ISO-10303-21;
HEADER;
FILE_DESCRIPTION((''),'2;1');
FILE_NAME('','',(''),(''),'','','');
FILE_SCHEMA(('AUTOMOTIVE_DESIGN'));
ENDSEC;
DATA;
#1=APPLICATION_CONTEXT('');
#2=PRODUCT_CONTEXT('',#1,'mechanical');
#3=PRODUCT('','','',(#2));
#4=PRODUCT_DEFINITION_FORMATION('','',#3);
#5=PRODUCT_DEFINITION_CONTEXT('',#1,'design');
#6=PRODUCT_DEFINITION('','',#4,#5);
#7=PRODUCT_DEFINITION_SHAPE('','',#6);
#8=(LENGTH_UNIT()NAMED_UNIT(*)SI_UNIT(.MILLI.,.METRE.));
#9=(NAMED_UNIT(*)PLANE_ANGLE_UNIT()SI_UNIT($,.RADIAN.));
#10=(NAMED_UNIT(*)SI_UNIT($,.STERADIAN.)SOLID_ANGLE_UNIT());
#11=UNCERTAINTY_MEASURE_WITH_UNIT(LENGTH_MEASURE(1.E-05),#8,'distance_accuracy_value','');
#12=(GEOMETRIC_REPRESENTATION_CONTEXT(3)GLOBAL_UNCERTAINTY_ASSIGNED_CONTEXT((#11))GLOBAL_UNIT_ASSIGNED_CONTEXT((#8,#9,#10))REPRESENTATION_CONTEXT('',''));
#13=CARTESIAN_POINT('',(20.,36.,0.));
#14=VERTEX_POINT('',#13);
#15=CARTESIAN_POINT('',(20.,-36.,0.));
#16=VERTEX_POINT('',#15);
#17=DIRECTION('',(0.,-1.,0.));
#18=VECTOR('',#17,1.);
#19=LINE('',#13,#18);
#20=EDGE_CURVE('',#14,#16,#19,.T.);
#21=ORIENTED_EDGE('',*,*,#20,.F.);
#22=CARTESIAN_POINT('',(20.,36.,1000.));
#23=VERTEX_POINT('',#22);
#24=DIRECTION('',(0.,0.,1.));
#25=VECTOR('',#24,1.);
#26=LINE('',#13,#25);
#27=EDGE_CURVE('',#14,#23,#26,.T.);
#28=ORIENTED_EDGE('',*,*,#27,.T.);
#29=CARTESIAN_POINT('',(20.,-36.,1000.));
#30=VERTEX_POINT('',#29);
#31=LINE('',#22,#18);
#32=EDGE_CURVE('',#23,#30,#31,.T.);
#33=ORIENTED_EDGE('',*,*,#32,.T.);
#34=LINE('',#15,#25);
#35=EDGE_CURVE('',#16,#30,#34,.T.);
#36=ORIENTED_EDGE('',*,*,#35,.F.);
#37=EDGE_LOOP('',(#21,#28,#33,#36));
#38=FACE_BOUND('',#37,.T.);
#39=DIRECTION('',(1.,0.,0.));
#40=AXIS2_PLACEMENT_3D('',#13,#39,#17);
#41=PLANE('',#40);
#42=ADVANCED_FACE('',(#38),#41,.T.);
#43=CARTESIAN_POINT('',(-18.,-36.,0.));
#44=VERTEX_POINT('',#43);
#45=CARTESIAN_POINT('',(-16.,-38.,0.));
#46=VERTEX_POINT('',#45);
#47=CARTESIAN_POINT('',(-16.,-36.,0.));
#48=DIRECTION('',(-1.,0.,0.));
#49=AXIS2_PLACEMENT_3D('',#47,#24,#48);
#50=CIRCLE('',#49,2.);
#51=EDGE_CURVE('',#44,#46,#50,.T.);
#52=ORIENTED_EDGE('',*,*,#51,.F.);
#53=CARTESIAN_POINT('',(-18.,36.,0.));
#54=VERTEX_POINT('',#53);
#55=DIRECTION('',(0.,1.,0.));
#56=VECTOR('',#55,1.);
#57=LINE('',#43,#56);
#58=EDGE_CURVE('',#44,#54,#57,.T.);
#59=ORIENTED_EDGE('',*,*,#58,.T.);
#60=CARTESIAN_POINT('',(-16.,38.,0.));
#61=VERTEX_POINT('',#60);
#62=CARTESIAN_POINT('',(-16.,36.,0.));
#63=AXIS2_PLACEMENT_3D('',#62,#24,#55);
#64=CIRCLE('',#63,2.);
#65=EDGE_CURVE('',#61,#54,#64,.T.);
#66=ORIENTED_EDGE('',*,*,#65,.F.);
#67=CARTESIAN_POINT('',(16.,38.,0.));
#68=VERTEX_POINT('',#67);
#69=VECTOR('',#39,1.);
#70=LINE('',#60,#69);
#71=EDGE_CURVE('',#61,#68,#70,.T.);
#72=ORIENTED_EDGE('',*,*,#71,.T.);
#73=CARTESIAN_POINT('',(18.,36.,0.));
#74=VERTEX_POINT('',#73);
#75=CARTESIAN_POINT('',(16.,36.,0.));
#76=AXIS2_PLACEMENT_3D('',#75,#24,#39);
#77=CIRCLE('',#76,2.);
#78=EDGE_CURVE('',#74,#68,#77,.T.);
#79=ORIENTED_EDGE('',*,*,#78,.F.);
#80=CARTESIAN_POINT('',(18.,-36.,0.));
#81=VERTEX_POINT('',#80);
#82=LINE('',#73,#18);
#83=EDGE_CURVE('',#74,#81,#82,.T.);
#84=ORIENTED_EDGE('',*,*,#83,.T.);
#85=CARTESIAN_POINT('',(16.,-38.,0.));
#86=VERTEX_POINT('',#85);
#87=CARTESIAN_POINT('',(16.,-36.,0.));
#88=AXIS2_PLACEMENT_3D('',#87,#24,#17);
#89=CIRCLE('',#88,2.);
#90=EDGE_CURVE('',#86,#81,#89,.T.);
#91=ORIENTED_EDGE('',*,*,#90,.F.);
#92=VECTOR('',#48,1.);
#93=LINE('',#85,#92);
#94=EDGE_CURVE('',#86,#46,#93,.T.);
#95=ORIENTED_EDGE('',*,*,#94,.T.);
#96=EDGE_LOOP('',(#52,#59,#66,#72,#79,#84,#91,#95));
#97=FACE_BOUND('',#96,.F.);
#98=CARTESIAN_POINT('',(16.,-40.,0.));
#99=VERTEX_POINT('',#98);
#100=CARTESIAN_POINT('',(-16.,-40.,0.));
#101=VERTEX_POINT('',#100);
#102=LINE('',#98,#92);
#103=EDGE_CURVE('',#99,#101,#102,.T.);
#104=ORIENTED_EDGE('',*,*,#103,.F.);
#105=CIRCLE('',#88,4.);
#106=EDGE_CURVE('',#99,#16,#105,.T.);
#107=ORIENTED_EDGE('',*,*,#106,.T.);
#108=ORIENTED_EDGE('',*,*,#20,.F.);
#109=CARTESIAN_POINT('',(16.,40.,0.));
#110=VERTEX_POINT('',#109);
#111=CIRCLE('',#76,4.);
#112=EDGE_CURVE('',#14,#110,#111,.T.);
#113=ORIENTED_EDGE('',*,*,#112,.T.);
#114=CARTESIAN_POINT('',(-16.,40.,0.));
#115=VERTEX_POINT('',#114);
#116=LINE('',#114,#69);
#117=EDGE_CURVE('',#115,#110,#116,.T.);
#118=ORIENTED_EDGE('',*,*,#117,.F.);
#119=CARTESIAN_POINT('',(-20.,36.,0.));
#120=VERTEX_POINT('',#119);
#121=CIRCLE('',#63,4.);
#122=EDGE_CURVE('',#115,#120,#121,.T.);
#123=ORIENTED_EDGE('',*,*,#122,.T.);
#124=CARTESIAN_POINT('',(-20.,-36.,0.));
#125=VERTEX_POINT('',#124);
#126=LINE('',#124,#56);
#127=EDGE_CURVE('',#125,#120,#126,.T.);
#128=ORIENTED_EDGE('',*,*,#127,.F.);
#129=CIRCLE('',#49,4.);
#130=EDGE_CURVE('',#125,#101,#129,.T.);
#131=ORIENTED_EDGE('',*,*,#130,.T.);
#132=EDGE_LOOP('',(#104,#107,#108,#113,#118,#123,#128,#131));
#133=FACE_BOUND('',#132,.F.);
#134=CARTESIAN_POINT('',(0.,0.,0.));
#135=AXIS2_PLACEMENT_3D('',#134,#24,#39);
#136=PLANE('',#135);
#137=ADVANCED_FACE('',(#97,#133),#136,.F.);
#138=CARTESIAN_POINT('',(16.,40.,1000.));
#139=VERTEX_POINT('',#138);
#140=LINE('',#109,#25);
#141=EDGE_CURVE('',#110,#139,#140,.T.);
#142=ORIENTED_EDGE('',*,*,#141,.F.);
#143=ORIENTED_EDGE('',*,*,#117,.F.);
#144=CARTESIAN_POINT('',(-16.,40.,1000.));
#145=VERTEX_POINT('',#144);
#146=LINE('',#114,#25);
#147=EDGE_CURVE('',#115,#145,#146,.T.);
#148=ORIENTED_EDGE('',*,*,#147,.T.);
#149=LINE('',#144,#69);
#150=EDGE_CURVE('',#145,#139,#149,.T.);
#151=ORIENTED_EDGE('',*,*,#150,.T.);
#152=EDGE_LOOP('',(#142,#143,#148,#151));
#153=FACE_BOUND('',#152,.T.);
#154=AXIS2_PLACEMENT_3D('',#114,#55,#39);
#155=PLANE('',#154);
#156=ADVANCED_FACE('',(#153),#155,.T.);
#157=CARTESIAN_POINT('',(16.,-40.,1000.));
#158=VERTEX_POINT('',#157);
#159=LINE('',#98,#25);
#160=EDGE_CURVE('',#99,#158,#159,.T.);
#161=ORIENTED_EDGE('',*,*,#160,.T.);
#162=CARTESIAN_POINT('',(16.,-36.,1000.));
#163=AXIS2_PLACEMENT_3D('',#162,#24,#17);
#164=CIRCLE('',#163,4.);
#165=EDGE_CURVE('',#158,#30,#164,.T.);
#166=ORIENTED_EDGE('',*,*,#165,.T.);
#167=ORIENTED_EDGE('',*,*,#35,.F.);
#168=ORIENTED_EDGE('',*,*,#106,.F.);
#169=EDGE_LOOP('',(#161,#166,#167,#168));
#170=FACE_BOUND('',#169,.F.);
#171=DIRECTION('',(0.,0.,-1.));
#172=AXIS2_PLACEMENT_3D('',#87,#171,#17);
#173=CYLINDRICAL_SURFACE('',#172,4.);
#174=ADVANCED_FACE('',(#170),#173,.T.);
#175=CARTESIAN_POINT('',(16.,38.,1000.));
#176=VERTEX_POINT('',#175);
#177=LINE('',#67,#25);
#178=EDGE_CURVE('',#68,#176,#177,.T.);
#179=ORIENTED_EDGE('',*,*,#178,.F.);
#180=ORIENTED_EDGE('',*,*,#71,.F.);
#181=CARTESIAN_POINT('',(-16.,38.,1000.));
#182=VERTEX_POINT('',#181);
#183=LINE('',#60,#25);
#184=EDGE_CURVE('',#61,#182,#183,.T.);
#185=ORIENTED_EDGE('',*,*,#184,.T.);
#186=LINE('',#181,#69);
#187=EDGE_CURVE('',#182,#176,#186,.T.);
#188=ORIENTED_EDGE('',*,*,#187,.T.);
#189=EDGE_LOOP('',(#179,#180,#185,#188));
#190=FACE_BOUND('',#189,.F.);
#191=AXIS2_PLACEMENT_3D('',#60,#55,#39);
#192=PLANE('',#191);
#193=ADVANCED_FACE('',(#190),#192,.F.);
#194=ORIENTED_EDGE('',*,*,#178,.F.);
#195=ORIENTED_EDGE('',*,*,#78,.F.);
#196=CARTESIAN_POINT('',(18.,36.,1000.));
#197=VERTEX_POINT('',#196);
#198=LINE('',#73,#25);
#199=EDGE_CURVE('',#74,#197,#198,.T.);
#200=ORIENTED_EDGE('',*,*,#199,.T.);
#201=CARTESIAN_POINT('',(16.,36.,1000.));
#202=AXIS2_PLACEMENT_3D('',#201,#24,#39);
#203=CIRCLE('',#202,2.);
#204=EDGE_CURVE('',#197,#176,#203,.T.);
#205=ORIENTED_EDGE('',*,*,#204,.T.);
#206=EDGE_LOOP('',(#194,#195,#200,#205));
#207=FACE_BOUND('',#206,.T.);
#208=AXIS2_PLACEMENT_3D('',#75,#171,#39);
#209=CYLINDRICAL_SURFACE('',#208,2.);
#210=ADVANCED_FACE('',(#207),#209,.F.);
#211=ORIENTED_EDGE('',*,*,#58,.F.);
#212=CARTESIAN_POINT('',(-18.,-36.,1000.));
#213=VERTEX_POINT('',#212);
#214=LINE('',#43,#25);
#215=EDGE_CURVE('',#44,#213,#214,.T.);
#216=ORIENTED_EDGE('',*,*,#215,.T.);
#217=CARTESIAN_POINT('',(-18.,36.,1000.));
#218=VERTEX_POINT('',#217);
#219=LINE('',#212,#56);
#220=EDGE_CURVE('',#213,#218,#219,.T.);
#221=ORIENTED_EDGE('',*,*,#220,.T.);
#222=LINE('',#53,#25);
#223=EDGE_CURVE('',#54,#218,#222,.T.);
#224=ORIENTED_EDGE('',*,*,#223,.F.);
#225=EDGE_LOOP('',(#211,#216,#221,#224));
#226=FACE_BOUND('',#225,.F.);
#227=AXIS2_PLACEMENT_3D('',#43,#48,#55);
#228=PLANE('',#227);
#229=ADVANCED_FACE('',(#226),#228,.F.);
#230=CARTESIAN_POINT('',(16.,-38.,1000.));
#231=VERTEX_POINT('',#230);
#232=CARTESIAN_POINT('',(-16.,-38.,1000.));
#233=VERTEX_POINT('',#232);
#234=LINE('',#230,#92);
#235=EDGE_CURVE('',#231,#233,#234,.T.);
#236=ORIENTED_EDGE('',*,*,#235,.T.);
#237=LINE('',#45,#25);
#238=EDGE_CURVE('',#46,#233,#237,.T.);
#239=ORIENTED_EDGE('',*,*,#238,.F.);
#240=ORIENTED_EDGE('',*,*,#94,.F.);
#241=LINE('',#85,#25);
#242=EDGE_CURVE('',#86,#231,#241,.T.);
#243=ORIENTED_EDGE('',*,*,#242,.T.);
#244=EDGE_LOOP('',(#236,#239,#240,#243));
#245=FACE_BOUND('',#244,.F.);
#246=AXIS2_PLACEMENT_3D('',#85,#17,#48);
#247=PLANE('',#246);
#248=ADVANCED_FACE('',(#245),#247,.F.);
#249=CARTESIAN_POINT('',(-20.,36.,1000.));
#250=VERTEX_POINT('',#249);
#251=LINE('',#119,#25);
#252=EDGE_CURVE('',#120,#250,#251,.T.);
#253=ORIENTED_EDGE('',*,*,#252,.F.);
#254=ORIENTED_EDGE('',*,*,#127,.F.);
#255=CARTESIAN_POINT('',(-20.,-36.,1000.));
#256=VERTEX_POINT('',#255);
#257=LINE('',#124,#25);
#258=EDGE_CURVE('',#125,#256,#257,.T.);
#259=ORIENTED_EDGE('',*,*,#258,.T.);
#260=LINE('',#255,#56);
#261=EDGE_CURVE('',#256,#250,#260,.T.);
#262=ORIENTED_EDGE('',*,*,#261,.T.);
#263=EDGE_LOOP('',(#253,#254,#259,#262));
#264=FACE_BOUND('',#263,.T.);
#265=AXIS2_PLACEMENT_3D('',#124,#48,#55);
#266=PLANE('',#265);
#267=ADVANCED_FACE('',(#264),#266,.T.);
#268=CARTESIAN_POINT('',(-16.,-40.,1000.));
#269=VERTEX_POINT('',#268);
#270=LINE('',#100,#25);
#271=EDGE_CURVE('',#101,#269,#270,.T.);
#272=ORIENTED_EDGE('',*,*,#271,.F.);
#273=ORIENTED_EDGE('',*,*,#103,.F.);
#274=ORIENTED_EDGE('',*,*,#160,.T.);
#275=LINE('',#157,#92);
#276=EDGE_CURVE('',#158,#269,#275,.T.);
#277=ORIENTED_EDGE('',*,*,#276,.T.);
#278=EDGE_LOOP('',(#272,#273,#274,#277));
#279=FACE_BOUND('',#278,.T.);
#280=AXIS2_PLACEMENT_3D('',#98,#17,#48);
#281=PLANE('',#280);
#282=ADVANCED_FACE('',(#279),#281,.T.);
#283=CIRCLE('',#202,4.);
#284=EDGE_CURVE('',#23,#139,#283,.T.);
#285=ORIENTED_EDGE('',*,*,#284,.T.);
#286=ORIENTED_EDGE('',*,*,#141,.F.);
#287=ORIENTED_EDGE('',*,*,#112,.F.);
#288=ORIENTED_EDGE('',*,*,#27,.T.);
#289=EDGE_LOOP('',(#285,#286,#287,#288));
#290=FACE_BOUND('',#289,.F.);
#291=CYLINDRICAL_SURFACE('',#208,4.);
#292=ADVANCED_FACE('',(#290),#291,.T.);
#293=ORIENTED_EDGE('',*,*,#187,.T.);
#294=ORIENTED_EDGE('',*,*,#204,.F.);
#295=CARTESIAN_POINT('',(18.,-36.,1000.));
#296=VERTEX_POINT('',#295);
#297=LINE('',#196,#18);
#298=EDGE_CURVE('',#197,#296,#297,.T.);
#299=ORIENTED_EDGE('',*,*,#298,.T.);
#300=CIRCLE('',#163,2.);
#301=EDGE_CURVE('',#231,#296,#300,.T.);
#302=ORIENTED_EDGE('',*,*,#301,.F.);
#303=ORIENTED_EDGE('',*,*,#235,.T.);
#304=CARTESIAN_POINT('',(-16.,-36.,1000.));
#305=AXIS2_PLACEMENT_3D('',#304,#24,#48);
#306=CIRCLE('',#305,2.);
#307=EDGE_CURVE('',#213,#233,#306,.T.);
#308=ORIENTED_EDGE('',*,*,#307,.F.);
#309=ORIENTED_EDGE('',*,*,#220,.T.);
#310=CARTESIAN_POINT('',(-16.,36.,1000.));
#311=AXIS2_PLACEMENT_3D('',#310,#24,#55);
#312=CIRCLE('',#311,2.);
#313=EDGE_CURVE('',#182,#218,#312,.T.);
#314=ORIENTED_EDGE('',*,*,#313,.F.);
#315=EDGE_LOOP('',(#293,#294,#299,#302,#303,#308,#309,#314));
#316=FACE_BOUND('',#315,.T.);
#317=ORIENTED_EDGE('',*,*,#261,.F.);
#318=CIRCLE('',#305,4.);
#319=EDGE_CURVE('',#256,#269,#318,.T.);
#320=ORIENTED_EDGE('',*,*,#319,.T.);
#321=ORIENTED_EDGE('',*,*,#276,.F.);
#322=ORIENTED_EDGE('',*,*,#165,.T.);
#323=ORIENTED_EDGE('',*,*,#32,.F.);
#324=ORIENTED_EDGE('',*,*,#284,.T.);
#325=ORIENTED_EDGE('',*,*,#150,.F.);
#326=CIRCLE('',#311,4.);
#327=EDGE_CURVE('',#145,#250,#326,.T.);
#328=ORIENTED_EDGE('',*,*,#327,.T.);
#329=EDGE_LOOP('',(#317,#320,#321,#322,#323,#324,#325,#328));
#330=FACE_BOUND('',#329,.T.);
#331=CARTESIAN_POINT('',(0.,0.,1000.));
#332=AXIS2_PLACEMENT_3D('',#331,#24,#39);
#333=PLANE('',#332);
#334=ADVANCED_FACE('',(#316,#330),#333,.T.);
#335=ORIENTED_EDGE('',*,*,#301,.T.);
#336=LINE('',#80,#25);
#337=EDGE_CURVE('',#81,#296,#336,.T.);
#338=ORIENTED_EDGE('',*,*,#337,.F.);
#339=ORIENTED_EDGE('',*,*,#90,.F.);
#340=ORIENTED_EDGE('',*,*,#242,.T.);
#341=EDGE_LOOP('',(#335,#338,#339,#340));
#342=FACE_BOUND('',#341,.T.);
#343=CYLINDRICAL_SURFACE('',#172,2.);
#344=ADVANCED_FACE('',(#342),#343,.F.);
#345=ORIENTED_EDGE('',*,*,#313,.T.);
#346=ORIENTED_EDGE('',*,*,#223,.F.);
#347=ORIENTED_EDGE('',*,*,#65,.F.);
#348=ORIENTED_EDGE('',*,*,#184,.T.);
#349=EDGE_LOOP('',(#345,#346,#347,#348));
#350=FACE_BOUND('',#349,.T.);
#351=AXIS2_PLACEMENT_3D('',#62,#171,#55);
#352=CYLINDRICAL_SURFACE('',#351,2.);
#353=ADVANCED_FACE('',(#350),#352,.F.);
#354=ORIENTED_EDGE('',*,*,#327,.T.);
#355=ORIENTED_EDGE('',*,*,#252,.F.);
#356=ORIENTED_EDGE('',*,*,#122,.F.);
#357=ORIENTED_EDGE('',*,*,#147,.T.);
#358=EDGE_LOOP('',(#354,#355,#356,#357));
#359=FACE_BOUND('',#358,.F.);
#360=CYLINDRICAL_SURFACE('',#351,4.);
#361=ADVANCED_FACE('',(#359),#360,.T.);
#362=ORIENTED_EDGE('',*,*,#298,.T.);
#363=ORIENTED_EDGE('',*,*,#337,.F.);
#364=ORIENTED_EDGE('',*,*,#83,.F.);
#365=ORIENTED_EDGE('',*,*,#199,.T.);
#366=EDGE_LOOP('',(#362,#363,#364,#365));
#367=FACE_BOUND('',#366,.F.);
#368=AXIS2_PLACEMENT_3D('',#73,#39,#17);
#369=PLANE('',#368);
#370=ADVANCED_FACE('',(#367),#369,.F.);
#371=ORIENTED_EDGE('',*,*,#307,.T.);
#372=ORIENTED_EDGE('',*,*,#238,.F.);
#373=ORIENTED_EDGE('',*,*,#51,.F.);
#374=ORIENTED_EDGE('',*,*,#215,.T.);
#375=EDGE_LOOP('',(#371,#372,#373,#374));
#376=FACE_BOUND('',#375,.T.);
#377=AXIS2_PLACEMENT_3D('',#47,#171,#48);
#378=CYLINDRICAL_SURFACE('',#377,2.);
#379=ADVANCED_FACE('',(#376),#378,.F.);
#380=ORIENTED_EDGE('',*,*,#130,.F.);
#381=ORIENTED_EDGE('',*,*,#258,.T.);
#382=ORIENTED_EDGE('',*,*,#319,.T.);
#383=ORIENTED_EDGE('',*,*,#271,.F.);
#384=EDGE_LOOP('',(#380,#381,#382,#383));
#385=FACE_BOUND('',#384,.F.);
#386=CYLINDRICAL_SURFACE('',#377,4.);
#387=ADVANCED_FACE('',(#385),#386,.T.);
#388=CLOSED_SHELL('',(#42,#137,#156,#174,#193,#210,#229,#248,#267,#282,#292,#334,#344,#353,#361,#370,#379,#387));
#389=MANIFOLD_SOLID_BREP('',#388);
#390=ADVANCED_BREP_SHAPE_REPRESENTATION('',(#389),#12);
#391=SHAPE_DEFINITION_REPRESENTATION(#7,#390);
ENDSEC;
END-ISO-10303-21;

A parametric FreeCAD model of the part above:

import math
import FreeCAD as App
import Part
import Sketcher

V = App.Vector

doc = App.newDocument("Part")
body = doc.addObject("PartDesign::Body", "Body")

# Sketch on XY plane
sketch1 = body.newObject("Sketcher::SketchObject", "Sketch")
sketch1.AttachmentSupport = (doc.getObject("XY_Plane"), [""])
sketch1.MapMode = "FlatFace"
sketch1.addGeometry([
    Part.LineSegment(V(-20, 36, 0), V(-20, -36, 0)),  # 0
    Part.ArcOfCircle(Part.Circle(V(-16, -36, 0), V(0, 0, 1), 4), math.radians(180), math.radians(270)),  # 1
    Part.LineSegment(V(-16, -40, 0), V(16, -40, 0)),  # 2
    Part.ArcOfCircle(Part.Circle(V(16, -36, 0), V(0, 0, 1), 4), math.radians(-90), math.radians(0)),  # 3
    Part.LineSegment(V(20, -36, 0), V(20, 36, 0)),  # 4
    Part.ArcOfCircle(Part.Circle(V(16, 36, 0), V(0, 0, 1), 4), math.radians(0), math.radians(90)),  # 5
    Part.LineSegment(V(16, 40, 0), V(-16, 40, 0)),  # 6
    Part.ArcOfCircle(Part.Circle(V(-16, 36, 0), V(0, 0, 1), 4), math.radians(90), math.radians(180)),  # 7
    Part.ArcOfCircle(Part.Circle(V(-16, 36, 0), V(0, 0, 1), 2), math.radians(90), math.radians(180)),  # 8
    Part.LineSegment(V(-16, 38, 0), V(16, 38, 0)),  # 9
    Part.ArcOfCircle(Part.Circle(V(16, 36, 0), V(0, 0, 1), 2), math.radians(0), math.radians(90)),  # 10
    Part.LineSegment(V(18, 36, 0), V(18, -36, 0)),  # 11
    Part.ArcOfCircle(Part.Circle(V(16, -36, 0), V(0, 0, 1), 2), math.radians(-90), math.radians(0)),  # 12
    Part.LineSegment(V(16, -38, 0), V(-16, -38, 0)),  # 13
    Part.ArcOfCircle(Part.Circle(V(-16, -36, 0), V(0, 0, 1), 2), math.radians(180), math.radians(270)),  # 14
    Part.LineSegment(V(-18, -36, 0), V(-18, 36, 0)),  # 15
], False)
sketch1.addConstraint([
    Sketcher.Constraint("Tangent", 0, 2, 1, 1),
    Sketcher.Constraint("Tangent", 1, 2, 2, 1),
    Sketcher.Constraint("Tangent", 2, 2, 3, 1),
    Sketcher.Constraint("Tangent", 3, 2, 4, 1),
    Sketcher.Constraint("Tangent", 4, 2, 5, 1),
    Sketcher.Constraint("Tangent", 5, 2, 6, 1),
    Sketcher.Constraint("Tangent", 6, 2, 7, 1),
    Sketcher.Constraint("Tangent", 7, 2, 0, 1),
    Sketcher.Constraint("Tangent", 8, 1, 9, 1),
    Sketcher.Constraint("Tangent", 9, 2, 10, 2),
    Sketcher.Constraint("Tangent", 10, 1, 11, 1),
    Sketcher.Constraint("Tangent", 11, 2, 12, 2),
    Sketcher.Constraint("Tangent", 12, 1, 13, 1),
    Sketcher.Constraint("Tangent", 13, 2, 14, 2),
    Sketcher.Constraint("Tangent", 14, 1, 15, 1),
    Sketcher.Constraint("Tangent", 15, 2, 8, 2),
    Sketcher.Constraint("Vertical", 0),
    Sketcher.Constraint("Horizontal", 2),
    Sketcher.Constraint("Vertical", 4),
    Sketcher.Constraint("Horizontal", 6),
    Sketcher.Constraint("Horizontal", 9),
    Sketcher.Constraint("Vertical", 11),
    Sketcher.Constraint("Horizontal", 13),
    Sketcher.Constraint("Vertical", 15),
    Sketcher.Constraint("Coincident", 8, 3, 7, 3),
    Sketcher.Constraint("Coincident", 10, 3, 5, 3),
    Sketcher.Constraint("Coincident", 12, 3, 3, 3),
    Sketcher.Constraint("Equal", 1, 3),
    Sketcher.Constraint("Equal", 3, 5),
    Sketcher.Constraint("Equal", 5, 7),
    Sketcher.Constraint("Equal", 12, 14),
    Sketcher.Constraint("Symmetric", 1, 3, 5, 3, -1, 1),
    Sketcher.Constraint("Radius", 1, 4.0),
    Sketcher.Constraint("Radius", 8, 2.0),
    Sketcher.Constraint("DistanceX", 0, 2, -1, 1, 20.0),
    Sketcher.Constraint("DistanceY", 1, 2, -1, 1, 40.0),
])
pad1 = body.newObject("PartDesign::Pad", "Pad")
pad1.Profile = sketch1
pad1.Length = 1000

doc.recompute()
